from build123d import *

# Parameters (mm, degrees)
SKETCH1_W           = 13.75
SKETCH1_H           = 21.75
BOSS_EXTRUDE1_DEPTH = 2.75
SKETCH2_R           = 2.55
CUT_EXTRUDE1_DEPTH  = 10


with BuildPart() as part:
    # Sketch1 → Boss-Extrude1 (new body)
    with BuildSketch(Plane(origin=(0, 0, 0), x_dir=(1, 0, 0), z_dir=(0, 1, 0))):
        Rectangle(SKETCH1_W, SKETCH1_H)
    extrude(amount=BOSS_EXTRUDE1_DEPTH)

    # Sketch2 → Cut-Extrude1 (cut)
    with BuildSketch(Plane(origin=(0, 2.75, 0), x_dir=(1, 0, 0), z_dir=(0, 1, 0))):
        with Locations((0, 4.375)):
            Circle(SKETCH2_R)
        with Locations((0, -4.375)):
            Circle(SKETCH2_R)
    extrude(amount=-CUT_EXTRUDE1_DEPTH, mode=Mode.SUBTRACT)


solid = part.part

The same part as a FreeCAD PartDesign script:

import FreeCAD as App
import Part
import Sketcher

V = App.Vector
Q = App.Units.Quantity


def add_polygon(sketch, points):
    """Adds a closed chain of lines whose ends are joined by coincident constraints."""
    first, n = sketch.GeometryCount, len(points)
    for a, b in zip(points, points[1:] + points[:1]):
        sketch.addGeometry(Part.LineSegment(App.Vector(*a, 0), App.Vector(*b, 0)), False)
    for i in range(n):
        sketch.addConstraint(Sketcher.Constraint("Coincident", first + i, 2, first + (i + 1) % n, 1))

doc = App.newDocument("Part")
params = doc.addObject("Spreadsheet::Sheet", "Params")
for row, (alias, value) in enumerate([
    ("sketch1_width", "13.75 mm"),
    ("sketch1_height", "21.75 mm"),
    ("pad1_length", "2.75 mm"),
    ("sketch2_diameter", "5.1 mm"),
    ("pocket1_length", "10 mm"),
], start=1):
    params.set(f"A{row}", alias)
    params.set(f"B{row}", "=" + value)
    params.setAlias(f"B{row}", alias)

body = doc.addObject("PartDesign::Body", "Body")

# Sketch on XZ plane
sketch1 = body.newObject("Sketcher::SketchObject", "Sketch")
sketch1.AttachmentSupport = (doc.getObject("XZ_Plane"), [""])
sketch1.MapMode = "FlatFace"
add_polygon(sketch1, [(-6.875, -10.875), (-6.875, 10.875), (6.875, 10.875), (6.875, -10.875)])  # lines 0-3
sketch1.addConstraint(Sketcher.Constraint("Vertical", 0))
sketch1.addConstraint(Sketcher.Constraint("Horizontal", 1))
sketch1.addConstraint(Sketcher.Constraint("Vertical", 2))
sketch1.addConstraint(Sketcher.Constraint("Horizontal", 3))
sketch1.addConstraint(Sketcher.Constraint("Symmetric", 0, 2, 2, 2, -1, 1))
sketch1.addConstraint(Sketcher.Constraint("DistanceX", 1, 1, 1, 2, Q("13.75 mm")))
sketch1.addConstraint(Sketcher.Constraint("DistanceY", 0, 1, 0, 2, Q("21.75 mm")))
sketch1.setExpression("Constraints[9]", "Params.sketch1_width")
sketch1.setExpression("Constraints[10]", "Params.sketch1_height")
pad1 = body.newObject("PartDesign::Pad", "Pad")
pad1.Profile = sketch1
pad1.setExpression("Length", "Params.pad1_length")
pad1.Reversed = True

# Sketch on XZ plane
sketch2 = body.newObject("Sketcher::SketchObject", "Sketch001")
sketch2.AttachmentSupport = (doc.getObject("XZ_Plane"), [""])
sketch2.MapMode = "FlatFace"
sketch2.AttachmentOffset = App.Placement(V(0, 0, -2.75), App.Rotation())
sketch2.addGeometry(Part.Circle(V(0, -4.375, 0), V(0, 0, 1), 2.55), False)
sketch2.addGeometry(Part.Circle(V(0, 4.375, 0), V(0, 0, 1), 2.55), False)
sketch2.addConstraint(Sketcher.Constraint("Equal", 0, 1))
sketch2.addConstraint(Sketcher.Constraint("Symmetric", 0, 3, 1, 3, -1, 1))
sketch2.addConstraint(Sketcher.Constraint("PointOnObject", 0, 3, -2))
sketch2.addConstraint(Sketcher.Constraint("Diameter", 0, Q("5.1 mm")))
sketch2.addConstraint(Sketcher.Constraint("DistanceY", 0, 3, 1, 3, Q("8.75 mm")))
sketch2.setExpression("Constraints[3]", "Params.sketch2_diameter")
pocket1 = body.newObject("PartDesign::Pocket", "Pocket")
pocket1.Profile = sketch2
pocket1.setExpression("Length", "Params.pocket1_length")
pocket1.Reversed = True

doc.recompute()
